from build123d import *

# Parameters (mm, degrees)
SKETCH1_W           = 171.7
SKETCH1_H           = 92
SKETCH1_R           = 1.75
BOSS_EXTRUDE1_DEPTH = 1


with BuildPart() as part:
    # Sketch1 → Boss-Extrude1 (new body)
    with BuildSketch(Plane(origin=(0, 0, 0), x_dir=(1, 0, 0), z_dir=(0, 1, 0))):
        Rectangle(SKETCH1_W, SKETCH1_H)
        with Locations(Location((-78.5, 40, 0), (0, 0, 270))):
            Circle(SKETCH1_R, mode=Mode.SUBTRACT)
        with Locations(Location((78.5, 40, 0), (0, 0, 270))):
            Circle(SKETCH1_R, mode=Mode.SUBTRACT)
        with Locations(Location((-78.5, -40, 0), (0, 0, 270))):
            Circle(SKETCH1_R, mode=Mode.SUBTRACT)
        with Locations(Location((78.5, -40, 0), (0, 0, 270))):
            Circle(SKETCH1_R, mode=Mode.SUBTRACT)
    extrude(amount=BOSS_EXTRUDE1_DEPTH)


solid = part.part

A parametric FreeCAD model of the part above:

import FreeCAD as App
import Part
import Sketcher

doc = App.newDocument("Part")
params = doc.addObject("Spreadsheet::Sheet", "Params")
for row, (alias, value) in enumerate([
    ("sketch1_diameter", "3.5 mm"),
    ("sketch1_height", "92 mm"),
    ("sketch1_width", "171.7 mm"),
    ("pad1_length", "1 mm"),
], start=1):
    params.set(f"A{row}", alias)
    params.set(f"B{row}", "=" + value)
    params.setAlias(f"B{row}", alias)

body = doc.addObject("PartDesign::Body", "Body")

sketch1 = body.newObject("Sketcher::SketchObject", "Sketch")
sketch1.AttachmentSupport = (doc.getObject("XZ_Plane"), [""])
sketch1.MapMode = "FlatFace"
sketch1.addGeometry([
    Part.LineSegment(App.Vector(-85.8, -46, 0), App.Vector(-85.8, 46, 0)),
    Part.LineSegment(App.Vector(-85.8, 46, 0), App.Vector(85.8, 46, 0)),
    Part.LineSegment(App.Vector(85.8, 46, 0), App.Vector(85.8, -46, 0)),
    Part.LineSegment(App.Vector(85.8, -46, 0), App.Vector(-85.8, -46, 0)),
    Part.Circle(App.Vector(-78.5, 40, 0), App.Vector(0, 0, 1), 1.8),
    Part.Circle(App.Vector(78.5, 40, 0), App.Vector(0, 0, 1), 1.8),
    Part.Circle(App.Vector(-78.5, -40, 0), App.Vector(0, 0, 1), 1.8),
    Part.Circle(App.Vector(78.5, -40, 0), App.Vector(0, 0, 1), 1.8),
], False)
sketch1.addConstraint([
    Sketcher.Constraint("Coincident", 0, 2, 1, 1),
    Sketcher.Constraint("Coincident", 1, 2, 2, 1),
    Sketcher.Constraint("Coincident", 2, 2, 3, 1),
    Sketcher.Constraint("Coincident", 3, 2, 0, 1),
    Sketcher.Constraint("Vertical", 0),
    Sketcher.Constraint("Horizontal", 1),
    Sketcher.Constraint("Vertical", 2),
    Sketcher.Constraint("Horizontal", 3),
    Sketcher.Constraint("Equal", 4, 5),
    Sketcher.Constraint("Equal", 5, 6),
    Sketcher.Constraint("Equal", 6, 7),
    Sketcher.Constraint("Symmetric", 5, 3, 6, 3, -1, 1),
    Sketcher.Constraint("Symmetric", 4, 3, 7, 3, -1, 1),
    Sketcher.Constraint("Symmetric", 0, 2, 2, 2, -1, 1),
    Sketcher.Constraint("Symmetric", 4, 3, 5, 3, -2),
    Sketcher.Constraint("Diameter", 4, 3.5),
    Sketcher.Constraint("DistanceY", 0, 1, 0, 2, 92.0),
    Sketcher.Constraint("DistanceX", 1, 1, 1, 2, 171.7),
    Sketcher.Constraint("DistanceY", -1, 1, 4, 3, 40.0),
    Sketcher.Constraint("DistanceX", 4, 3, 5, 3, 157.0),
])
sketch1.setExpression("Constraints[15]", "Params.sketch1_diameter")
sketch1.setExpression("Constraints[16]", "Params.sketch1_height")
sketch1.setExpression("Constraints[17]", "Params.sketch1_width")
pad1 = body.newObject("PartDesign::Pad", "Pad")
pad1.Profile = sketch1
pad1.setExpression("Length", "Params.pad1_length")
pad1.Reversed = True

doc.recompute()
